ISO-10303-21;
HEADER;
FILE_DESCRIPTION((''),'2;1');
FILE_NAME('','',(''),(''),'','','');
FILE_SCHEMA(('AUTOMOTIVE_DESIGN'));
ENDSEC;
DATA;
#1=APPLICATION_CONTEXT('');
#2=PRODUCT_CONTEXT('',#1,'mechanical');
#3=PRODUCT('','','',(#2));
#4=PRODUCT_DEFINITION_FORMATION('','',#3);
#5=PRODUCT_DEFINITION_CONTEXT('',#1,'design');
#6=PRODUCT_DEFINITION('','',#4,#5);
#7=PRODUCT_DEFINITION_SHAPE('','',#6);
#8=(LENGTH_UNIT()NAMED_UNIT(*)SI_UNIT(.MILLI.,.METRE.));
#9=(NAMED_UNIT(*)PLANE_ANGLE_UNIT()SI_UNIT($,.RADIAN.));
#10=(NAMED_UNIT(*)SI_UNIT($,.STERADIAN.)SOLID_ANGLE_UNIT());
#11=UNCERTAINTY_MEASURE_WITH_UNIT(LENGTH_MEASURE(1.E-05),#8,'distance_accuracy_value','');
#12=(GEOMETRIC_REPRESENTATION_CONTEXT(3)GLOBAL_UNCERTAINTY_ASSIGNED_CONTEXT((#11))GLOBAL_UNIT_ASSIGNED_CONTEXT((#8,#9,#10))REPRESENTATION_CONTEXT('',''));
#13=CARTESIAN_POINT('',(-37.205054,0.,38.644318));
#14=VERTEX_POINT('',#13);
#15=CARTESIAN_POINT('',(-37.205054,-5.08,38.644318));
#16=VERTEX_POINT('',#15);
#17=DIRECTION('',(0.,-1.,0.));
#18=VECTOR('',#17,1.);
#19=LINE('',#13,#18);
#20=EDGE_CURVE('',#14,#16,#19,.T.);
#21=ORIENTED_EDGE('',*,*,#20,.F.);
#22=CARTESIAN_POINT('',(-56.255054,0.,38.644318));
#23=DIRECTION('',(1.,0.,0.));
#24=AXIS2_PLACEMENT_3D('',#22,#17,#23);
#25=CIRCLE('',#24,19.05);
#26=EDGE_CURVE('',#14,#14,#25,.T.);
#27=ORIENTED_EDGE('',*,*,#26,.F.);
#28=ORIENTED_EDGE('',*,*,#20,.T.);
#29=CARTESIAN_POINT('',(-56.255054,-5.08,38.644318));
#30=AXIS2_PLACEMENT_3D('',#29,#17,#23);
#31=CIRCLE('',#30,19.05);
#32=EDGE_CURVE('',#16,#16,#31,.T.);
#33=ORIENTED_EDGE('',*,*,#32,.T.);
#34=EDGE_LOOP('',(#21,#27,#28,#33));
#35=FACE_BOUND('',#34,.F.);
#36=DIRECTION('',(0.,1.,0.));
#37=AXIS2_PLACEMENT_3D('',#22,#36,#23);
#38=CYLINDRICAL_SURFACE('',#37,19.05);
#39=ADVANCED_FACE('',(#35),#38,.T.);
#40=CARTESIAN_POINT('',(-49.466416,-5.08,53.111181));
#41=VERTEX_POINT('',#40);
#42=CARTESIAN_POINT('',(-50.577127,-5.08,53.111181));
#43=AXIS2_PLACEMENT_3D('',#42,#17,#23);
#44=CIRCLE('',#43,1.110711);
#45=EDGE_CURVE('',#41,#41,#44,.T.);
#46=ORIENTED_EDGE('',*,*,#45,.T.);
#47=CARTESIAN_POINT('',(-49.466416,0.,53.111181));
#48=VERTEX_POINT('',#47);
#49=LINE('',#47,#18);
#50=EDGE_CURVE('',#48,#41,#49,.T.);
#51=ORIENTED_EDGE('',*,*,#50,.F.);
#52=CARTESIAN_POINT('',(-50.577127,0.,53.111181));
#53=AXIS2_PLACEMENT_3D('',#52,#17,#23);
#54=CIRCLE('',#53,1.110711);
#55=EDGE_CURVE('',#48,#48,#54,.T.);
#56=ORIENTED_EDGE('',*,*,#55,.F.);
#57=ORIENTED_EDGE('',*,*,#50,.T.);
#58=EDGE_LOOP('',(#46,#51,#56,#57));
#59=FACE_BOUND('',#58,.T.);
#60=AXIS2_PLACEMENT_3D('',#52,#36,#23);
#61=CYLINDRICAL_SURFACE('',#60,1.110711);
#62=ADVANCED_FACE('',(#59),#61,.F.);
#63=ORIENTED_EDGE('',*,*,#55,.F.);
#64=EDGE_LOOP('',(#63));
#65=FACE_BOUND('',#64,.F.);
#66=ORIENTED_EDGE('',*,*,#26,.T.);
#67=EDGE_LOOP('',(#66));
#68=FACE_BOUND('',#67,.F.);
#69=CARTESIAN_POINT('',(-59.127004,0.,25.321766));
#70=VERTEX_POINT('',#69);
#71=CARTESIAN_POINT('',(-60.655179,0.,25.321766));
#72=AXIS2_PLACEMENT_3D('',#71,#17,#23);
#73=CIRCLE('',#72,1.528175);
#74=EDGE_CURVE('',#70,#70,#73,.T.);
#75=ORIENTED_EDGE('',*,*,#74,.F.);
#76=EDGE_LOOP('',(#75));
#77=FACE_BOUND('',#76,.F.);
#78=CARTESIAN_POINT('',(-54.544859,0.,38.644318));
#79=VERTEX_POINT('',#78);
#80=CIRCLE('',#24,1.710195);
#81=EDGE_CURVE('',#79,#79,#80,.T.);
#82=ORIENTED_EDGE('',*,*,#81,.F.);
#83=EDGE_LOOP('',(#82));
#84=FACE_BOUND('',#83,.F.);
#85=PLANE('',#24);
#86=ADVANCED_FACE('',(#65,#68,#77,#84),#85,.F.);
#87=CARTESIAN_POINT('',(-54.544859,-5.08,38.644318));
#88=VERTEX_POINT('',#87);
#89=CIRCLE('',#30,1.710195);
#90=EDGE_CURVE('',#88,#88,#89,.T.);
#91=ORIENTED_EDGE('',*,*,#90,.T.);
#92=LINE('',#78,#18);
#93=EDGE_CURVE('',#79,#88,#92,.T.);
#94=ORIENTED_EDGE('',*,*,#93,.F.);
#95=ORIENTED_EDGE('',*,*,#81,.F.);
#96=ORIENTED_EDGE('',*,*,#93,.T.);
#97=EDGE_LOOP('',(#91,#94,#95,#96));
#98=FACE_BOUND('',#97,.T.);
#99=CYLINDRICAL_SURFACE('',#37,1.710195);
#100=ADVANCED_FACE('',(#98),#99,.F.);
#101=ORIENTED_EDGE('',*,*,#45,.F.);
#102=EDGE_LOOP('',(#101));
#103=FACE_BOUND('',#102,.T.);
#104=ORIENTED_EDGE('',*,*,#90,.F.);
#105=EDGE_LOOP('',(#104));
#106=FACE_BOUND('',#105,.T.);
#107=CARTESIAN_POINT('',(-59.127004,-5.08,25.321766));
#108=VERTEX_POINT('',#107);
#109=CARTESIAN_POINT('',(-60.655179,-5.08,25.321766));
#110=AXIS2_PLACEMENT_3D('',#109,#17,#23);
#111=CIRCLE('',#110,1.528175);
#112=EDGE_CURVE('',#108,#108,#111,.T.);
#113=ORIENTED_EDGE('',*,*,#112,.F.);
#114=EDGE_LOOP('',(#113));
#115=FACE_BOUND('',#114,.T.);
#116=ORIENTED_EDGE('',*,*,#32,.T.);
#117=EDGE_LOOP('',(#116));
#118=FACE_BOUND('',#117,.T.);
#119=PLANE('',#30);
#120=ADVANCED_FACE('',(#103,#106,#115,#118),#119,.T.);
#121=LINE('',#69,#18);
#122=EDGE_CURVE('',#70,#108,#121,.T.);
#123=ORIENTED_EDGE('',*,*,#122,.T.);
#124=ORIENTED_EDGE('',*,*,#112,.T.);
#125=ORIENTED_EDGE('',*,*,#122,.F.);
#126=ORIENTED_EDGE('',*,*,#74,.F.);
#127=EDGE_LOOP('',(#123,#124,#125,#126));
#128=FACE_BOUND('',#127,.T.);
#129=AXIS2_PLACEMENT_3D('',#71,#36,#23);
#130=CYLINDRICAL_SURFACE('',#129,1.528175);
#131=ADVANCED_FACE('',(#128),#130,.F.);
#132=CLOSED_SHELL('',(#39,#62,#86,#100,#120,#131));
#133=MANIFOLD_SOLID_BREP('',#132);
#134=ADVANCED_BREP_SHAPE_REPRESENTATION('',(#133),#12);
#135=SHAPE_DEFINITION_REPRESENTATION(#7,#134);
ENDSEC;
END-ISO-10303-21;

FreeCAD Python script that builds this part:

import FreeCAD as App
import Part
import Sketcher

V = App.Vector
Q = App.Units.Quantity

doc = App.newDocument("Part")
params = doc.addObject("Spreadsheet::Sheet", "Params")
for row, (alias, value) in enumerate([
    ("sketch1_diameter", "1.5 in"),
    ("pad1_length", "0.2 in"),
], start=1):
    params.set(f"A{row}", alias)
    params.set(f"B{row}", "=" + value)
    params.setAlias(f"B{row}", alias)

body = doc.addObject("PartDesign::Body", "Body")

# Sketch on XZ plane
sketch1 = body.newObject("Sketcher::SketchObject", "Sketch")
sketch1.AttachmentSupport = (doc.getObject("XZ_Plane"), [""])
sketch1.MapMode = "FlatFace"
sketch1.addGeometry([
    Part.Circle(V(-56.3, 38.6, 0), V(0, 0, 1), 19.1),
    Part.Circle(V(-60.7, 25.3, 0), V(0, 0, 1), 1.5),
    Part.Circle(V(-56.3, 38.6, 0), V(0, 0, 1), 1.7),
    Part.Circle(V(-50.6, 53.1, 0), V(0, 0, 1), 1.1),
], False)
sketch1.addConstraint([
    Sketcher.Constraint("Coincident", 2, 3, 0, 3),
    Sketcher.Constraint("Diameter", 0, Q("1.5 in")),
    Sketcher.Constraint("Diameter", 1, 3.05635),
    Sketcher.Constraint("Diameter", 2, 3.42039),
    Sketcher.Constraint("Diameter", 3, 2.221422),
    Sketcher.Constraint("DistanceX", 1, 3, -1, 1, 60.655179),
    Sketcher.Constraint("DistanceY", -1, 1, 3, 3, 53.111181),
    Sketcher.Constraint("DistanceY", 1, 3, 0, 3, 13.322552),
    Sketcher.Constraint("DistanceX", 0, 3, -1, 1, 56.255054),
    Sketcher.Constraint("DistanceY", -1, 1, 0, 3, 38.644318),
    Sketcher.Constraint("DistanceX", 3, 3, -1, 1, 50.577127),
])
sketch1.setExpression("Constraints[1]", "Params.sketch1_diameter")
pad1 = body.newObject("PartDesign::Pad", "Pad")
pad1.Profile = sketch1
pad1.setExpression("Length", "Params.pad1_length")

doc.recompute()
